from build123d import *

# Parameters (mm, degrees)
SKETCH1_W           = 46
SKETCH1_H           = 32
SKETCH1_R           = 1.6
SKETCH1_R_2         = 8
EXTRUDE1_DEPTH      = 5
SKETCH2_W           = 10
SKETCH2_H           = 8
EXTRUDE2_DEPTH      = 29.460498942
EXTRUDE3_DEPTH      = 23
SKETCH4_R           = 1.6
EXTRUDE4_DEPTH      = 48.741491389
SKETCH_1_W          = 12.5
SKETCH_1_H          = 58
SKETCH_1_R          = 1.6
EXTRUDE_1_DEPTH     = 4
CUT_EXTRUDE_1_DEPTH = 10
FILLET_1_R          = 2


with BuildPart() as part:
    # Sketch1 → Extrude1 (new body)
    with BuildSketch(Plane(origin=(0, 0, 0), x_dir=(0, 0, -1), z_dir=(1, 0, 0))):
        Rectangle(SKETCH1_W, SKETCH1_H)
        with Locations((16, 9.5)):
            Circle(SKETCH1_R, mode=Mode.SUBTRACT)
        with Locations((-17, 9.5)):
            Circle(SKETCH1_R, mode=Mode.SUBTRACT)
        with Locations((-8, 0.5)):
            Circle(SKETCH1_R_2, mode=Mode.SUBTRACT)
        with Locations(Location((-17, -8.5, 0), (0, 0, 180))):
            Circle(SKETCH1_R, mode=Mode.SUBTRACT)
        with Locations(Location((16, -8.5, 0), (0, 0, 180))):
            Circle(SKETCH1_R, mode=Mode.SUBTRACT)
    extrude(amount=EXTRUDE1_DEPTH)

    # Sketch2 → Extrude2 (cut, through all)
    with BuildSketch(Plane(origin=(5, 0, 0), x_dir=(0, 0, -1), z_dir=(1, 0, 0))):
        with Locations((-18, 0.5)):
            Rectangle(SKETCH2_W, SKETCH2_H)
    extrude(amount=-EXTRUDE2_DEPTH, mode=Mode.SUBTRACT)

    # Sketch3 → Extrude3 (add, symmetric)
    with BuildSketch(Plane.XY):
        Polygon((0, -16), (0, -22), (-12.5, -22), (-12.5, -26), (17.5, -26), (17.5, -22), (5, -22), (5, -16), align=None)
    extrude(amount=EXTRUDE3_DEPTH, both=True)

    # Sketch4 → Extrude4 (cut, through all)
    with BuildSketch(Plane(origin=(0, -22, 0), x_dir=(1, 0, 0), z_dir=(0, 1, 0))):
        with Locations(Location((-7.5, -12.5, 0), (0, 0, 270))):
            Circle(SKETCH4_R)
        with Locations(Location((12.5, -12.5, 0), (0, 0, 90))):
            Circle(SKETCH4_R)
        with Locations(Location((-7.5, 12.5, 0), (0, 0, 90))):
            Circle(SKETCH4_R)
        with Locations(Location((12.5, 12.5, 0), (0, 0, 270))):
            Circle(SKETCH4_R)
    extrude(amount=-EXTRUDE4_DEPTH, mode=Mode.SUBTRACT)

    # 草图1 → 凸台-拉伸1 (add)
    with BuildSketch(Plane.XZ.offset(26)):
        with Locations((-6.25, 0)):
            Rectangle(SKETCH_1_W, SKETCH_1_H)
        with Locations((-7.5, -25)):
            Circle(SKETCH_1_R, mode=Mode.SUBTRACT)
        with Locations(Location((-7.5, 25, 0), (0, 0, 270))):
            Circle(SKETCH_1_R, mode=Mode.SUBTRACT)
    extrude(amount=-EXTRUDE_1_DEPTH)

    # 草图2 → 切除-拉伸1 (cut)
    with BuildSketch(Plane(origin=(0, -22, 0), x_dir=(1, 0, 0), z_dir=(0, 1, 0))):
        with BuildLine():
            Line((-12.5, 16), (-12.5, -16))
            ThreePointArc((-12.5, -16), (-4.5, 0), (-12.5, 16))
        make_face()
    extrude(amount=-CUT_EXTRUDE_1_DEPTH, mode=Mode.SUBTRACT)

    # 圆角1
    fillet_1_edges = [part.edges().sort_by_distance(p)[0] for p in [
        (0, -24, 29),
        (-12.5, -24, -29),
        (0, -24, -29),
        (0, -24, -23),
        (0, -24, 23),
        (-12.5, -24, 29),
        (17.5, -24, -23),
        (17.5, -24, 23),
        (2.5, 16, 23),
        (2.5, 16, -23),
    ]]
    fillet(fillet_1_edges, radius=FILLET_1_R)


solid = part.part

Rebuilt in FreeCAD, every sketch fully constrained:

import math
import FreeCAD as App
import Part
import Sketcher


def edges_at(feature, points):
    """Names of the edges that pass closest to the given points."""
    edges = feature.Shape.Edges
    near = lambda p: min(range(len(edges)), key=lambda i: edges[i].distToShape(Part.Vertex(*p))[0])
    return sorted({f"Edge{near(p) + 1}" for p in points})


def add_polygon(sketch, points):
    """Adds a closed chain of lines whose ends are joined by coincident constraints."""
    first, n = sketch.GeometryCount, len(points)
    for a, b in zip(points, points[1:] + points[:1]):
        sketch.addGeometry(Part.LineSegment(App.Vector(*a, 0), App.Vector(*b, 0)), False)
    for i in range(n):
        sketch.addConstraint(Sketcher.Constraint("Coincident", first + i, 2, first + (i + 1) % n, 1))

doc = App.newDocument("Part")
body = doc.addObject("PartDesign::Body", "Body")

sketch1 = body.newObject("Sketcher::SketchObject", "Sketch")
sketch1.AttachmentSupport = (doc.getObject("YZ_Plane"), [""])
sketch1.MapMode = "FlatFace"
add_polygon(sketch1, [(16, 23), (-16, 23), (-16, -23), (16, -23)])
sketch1.addGeometry(Part.Circle(App.Vector(-8.5, 17, 0), App.Vector(0, 0, 1), 1.6), False)
sketch1.addGeometry(Part.Circle(App.Vector(-8.5, -16, 0), App.Vector(0, 0, 1), 1.6), False)
sketch1.addGeometry(Part.Circle(App.Vector(0.5, 8, 0), App.Vector(0, 0, 1), 8), False)
sketch1.addGeometry(Part.Circle(App.Vector(9.5, 17, 0), App.Vector(0, 0, 1), 1.6), False)
sketch1.addGeometry(Part.Circle(App.Vector(9.5, -16, 0), App.Vector(0, 0, 1), 1.6), False)
sketch1.addConstraint(Sketcher.Constraint("Horizontal", 0))
sketch1.addConstraint(Sketcher.Constraint("Vertical", 1))
sketch1.addConstraint(Sketcher.Constraint("Horizontal", 2))
sketch1.addConstraint(Sketcher.Constraint("Vertical", 3))
sketch1.addConstraint(Sketcher.Constraint("Equal", 4, 5))
sketch1.addConstraint(Sketcher.Constraint("Equal", 5, 7))
sketch1.addConstraint(Sketcher.Constraint("Equal", 7, 8))
sketch1.addConstraint(Sketcher.Constraint("Symmetric", 0, 2, 2, 2, -1, 1))
sketch1.addConstraint(Sketcher.Constraint("Horizontal", 4, 3, 7, 3))
sketch1.addConstraint(Sketcher.Constraint("Horizontal", 5, 3, 8, 3))
sketch1.addConstraint(Sketcher.Constraint("Vertical", 4, 3, 5, 3))
sketch1.addConstraint(Sketcher.Constraint("Vertical", 7, 3, 8, 3))
sketch1.addConstraint(Sketcher.Constraint("Diameter", 6, 16.0))
sketch1.addConstraint(Sketcher.Constraint("Diameter", 4, 3.2))
sketch1.addConstraint(Sketcher.Constraint("DistanceX", 0, 2, 0, 1, 32.0))
sketch1.addConstraint(Sketcher.Constraint("DistanceY", 1, 2, 1, 1, 46.0))
sketch1.addConstraint(Sketcher.Constraint("DistanceY", -1, 1, 4, 3, 17.0))
sketch1.addConstraint(Sketcher.Constraint("DistanceY", 5, 3, -1, 1, 16.0))
sketch1.addConstraint(Sketcher.Constraint("DistanceY", -1, 1, 6, 3, 8.0))
sketch1.addConstraint(Sketcher.Constraint("DistanceX", 4, 3, 6, 3, 9.0))
sketch1.addConstraint(Sketcher.Constraint("DistanceX", 6, 3, 7, 3, 9.0))
sketch1.addConstraint(Sketcher.Constraint("DistanceX", 4, 3, -1, 1, 8.5))
pad1 = body.newObject("PartDesign::Pad", "Pad")
pad1.Profile = sketch1
pad1.Length = 5

sketch2 = body.newObject("Sketcher::SketchObject", "Sketch001")
sketch2.AttachmentSupport = (doc.getObject("YZ_Plane"), [""])
sketch2.MapMode = "FlatFace"
sketch2.AttachmentOffset = App.Placement(App.Vector(0, 0, 5), App.Rotation())
add_polygon(sketch2, [(4.5, 23), (-3.5, 23), (-3.5, 13), (4.5, 13)])
sketch2.addConstraint(Sketcher.Constraint("Horizontal", 0))
sketch2.addConstraint(Sketcher.Constraint("Vertical", 1))
sketch2.addConstraint(Sketcher.Constraint("Horizontal", 2))
sketch2.addConstraint(Sketcher.Constraint("Vertical", 3))
sketch2.addConstraint(Sketcher.Constraint("DistanceX", 0, 2, 0, 1, 8.0))
sketch2.addConstraint(Sketcher.Constraint("DistanceY", 1, 2, 1, 1, 10.0))
sketch2.addConstraint(Sketcher.Constraint("DistanceY", -1, 1, 0, 2, 23.0))
sketch2.addConstraint(Sketcher.Constraint("DistanceX", 0, 2, -1, 1, 3.5))
pocket1 = body.newObject("PartDesign::Pocket", "Pocket")
pocket1.Profile = sketch2
pocket1.Type = "ThroughAll"

sketch3 = body.newObject("Sketcher::SketchObject", "Sketch002")
sketch3.AttachmentSupport = (doc.getObject("XY_Plane"), [""])
sketch3.MapMode = "FlatFace"
add_polygon(sketch3, [(0, -16), (0, -22), (-12.5, -22), (-12.5, -26), (17.5, -26), (17.5, -22), (5, -22), (5, -16)])
sketch3.addConstraint(Sketcher.Constraint("Vertical", 0))
sketch3.addConstraint(Sketcher.Constraint("Horizontal", 1))
sketch3.addConstraint(Sketcher.Constraint("Vertical", 2))
sketch3.addConstraint(Sketcher.Constraint("Horizontal", 3))
sketch3.addConstraint(Sketcher.Constraint("Vertical", 4))
sketch3.addConstraint(Sketcher.Constraint("Horizontal", 5))
sketch3.addConstraint(Sketcher.Constraint("Vertical", 6))
sketch3.addConstraint(Sketcher.Constraint("Horizontal", 7))
sketch3.addConstraint(Sketcher.Constraint("PointOnObject", 0, 2, -2))
sketch3.addConstraint(Sketcher.Constraint("Horizontal", 1, 2, 4, 2))
sketch3.addConstraint(Sketcher.Constraint("Equal", 1, 5))
sketch3.addConstraint(Sketcher.Constraint("DistanceX", 3, 1, 3, 2, 30.0))
sketch3.addConstraint(Sketcher.Constraint("DistanceX", 7, 2, 7, 1, 5.0))
sketch3.addConstraint(Sketcher.Constraint("DistanceY", 0, 2, 0, 1, 6.0))
sketch3.addConstraint(Sketcher.Constraint("DistanceY", 2, 2, 2, 1, 4.0))
sketch3.addConstraint(Sketcher.Constraint("DistanceY", 0, 2, -1, 1, 22.0))
pad2 = body.newObject("PartDesign::Pad", "Pad001")
pad2.Profile = sketch3
pad2.Length = 46
pad2.Midplane = True

sketch4 = body.newObject("Sketcher::SketchObject", "Sketch003")
sketch4.AttachmentSupport = (doc.getObject("XZ_Plane"), [""])
sketch4.MapMode = "FlatFace"
sketch4.AttachmentOffset = App.Placement(App.Vector(0, 0, 22), App.Rotation())
sketch4.addGeometry(Part.Circle(App.Vector(-7.5, 12.5, 0), App.Vector(0, 0, 1), 1.6), False)
sketch4.addGeometry(Part.Circle(App.Vector(12.5, 12.5, 0), App.Vector(0, 0, 1), 1.6), False)
sketch4.addGeometry(Part.Circle(App.Vector(-7.5, -12.5, 0), App.Vector(0, 0, 1), 1.6), False)
sketch4.addGeometry(Part.Circle(App.Vector(12.5, -12.5, 0), App.Vector(0, 0, 1), 1.6), False)
sketch4.addConstraint(Sketcher.Constraint("Equal", 0, 1))
sketch4.addConstraint(Sketcher.Constraint("Equal", 1, 2))
sketch4.addConstraint(Sketcher.Constraint("Equal", 2, 3))
sketch4.addConstraint(Sketcher.Constraint("Symmetric", 0, 3, 2, 3, -1))
sketch4.addConstraint(Sketcher.Constraint("Symmetric", 1, 3, 3, 3, -1))
sketch4.addConstraint(Sketcher.Constraint("Horizontal", 0, 3, 1, 3))
sketch4.addConstraint(Sketcher.Constraint("Diameter", 0, 3.2))
sketch4.addConstraint(Sketcher.Constraint("DistanceX", 0, 3, 1, 3, 20.0))
sketch4.addConstraint(Sketcher.Constraint("DistanceY", 2, 3, 0, 3, 25.0))
sketch4.addConstraint(Sketcher.Constraint("DistanceX", 0, 3, -1, 1, 7.5))
pocket2 = body.newObject("PartDesign::Pocket", "Pocket001")
pocket2.Profile = sketch4
pocket2.Type = "ThroughAll"
pocket2.Reversed = True

sketch5 = body.newObject("Sketcher::SketchObject", "Sketch004")
sketch5.AttachmentSupport = (doc.getObject("XZ_Plane"), [""])
sketch5.MapMode = "FlatFace"
sketch5.AttachmentOffset = App.Placement(App.Vector(0, 0, 26), App.Rotation())
add_polygon(sketch5, [(-12.5, 29), (-12.5, -29), (0, -29), (0, 29)])
sketch5.addGeometry(Part.Circle(App.Vector(-7.5, -25, 0), App.Vector(0, 0, 1), 1.6), False)
sketch5.addGeometry(Part.Circle(App.Vector(-7.5, 25, 0), App.Vector(0, 0, 1), 1.6), False)
sketch5.addConstraint(Sketcher.Constraint("Vertical", 0))
sketch5.addConstraint(Sketcher.Constraint("Horizontal", 1))
sketch5.addConstraint(Sketcher.Constraint("Vertical", 2))
sketch5.addConstraint(Sketcher.Constraint("Horizontal", 3))
sketch5.addConstraint(Sketcher.Constraint("Equal", 4, 5))
sketch5.addConstraint(Sketcher.Constraint("Symmetric", 1, 2, 2, 2, -1, 1))
sketch5.addConstraint(Sketcher.Constraint("Symmetric", 4, 3, 5, 3, -1))
sketch5.addConstraint(Sketcher.Constraint("Diameter", 4, 3.2))
sketch5.addConstraint(Sketcher.Constraint("DistanceY", 0, 2, 0, 1, 58.0))
sketch5.addConstraint(Sketcher.Constraint("DistanceX", 1, 1, 1, 2, 12.5))
sketch5.addConstraint(Sketcher.Constraint("DistanceY", 4, 3, -1, 1, 25.0))
sketch5.addConstraint(Sketcher.Constraint("DistanceX", 0, 2, 4, 3, 5.0))
pad3 = body.newObject("PartDesign::Pad", "Pad002")
pad3.Profile = sketch5
pad3.Length = 4
pad3.Reversed = True

sketch6 = body.newObject("Sketcher::SketchObject", "Sketch005")
sketch6.AttachmentSupport = (doc.getObject("XZ_Plane"), [""])
sketch6.MapMode = "FlatFace"
sketch6.AttachmentOffset = App.Placement(App.Vector(0, 0, 22), App.Rotation())
sketch6.addGeometry(Part.LineSegment(App.Vector(-12.5, -16, 0), App.Vector(-12.5, 16, 0)), False)
sketch6.addGeometry(Part.ArcOfCircle(Part.Circle(App.Vector(-24.5, 0, 0), App.Vector(0, 0, 1), 20), math.radians(-53.130102), math.radians(53.130102)), False)
sketch6.addConstraint(Sketcher.Constraint("Coincident", 0, 1, 1, 1))
sketch6.addConstraint(Sketcher.Constraint("Coincident", 1, 2, 0, 2))
sketch6.addConstraint(Sketcher.Constraint("Vertical", 0))
sketch6.addConstraint(Sketcher.Constraint("PointOnObject", 1, 3, -1))
sketch6.addConstraint(Sketcher.Constraint("Radius", 1, 20.0))
sketch6.addConstraint(Sketcher.Constraint("DistanceY", 0, 1, 0, 2, 32.0))
sketch6.addConstraint(Sketcher.Constraint("DistanceX", 1, 3, -1, 1, 24.5))
pocket3 = body.newObject("PartDesign::Pocket", "Pocket002")
pocket3.Profile = sketch6
pocket3.Length = 10
pocket3.Reversed = True
doc.recompute()

fillet = body.newObject("PartDesign::Fillet", "Fillet")
fillet.Base = (pocket3, edges_at(pocket3, [
    (0, -24, 29),
    (-12.5, -24, -29),
    (0, -24, -29),
    (0, -24, -23),
    (0, -24, 23),
    (-12.5, -24, 29),
    (17.5, -24, -23),
    (17.5, -24, 23),
    (2.5, 16, 23),
    (2.5, 16, -23),
]))
fillet.Radius = 2

doc.recompute()
